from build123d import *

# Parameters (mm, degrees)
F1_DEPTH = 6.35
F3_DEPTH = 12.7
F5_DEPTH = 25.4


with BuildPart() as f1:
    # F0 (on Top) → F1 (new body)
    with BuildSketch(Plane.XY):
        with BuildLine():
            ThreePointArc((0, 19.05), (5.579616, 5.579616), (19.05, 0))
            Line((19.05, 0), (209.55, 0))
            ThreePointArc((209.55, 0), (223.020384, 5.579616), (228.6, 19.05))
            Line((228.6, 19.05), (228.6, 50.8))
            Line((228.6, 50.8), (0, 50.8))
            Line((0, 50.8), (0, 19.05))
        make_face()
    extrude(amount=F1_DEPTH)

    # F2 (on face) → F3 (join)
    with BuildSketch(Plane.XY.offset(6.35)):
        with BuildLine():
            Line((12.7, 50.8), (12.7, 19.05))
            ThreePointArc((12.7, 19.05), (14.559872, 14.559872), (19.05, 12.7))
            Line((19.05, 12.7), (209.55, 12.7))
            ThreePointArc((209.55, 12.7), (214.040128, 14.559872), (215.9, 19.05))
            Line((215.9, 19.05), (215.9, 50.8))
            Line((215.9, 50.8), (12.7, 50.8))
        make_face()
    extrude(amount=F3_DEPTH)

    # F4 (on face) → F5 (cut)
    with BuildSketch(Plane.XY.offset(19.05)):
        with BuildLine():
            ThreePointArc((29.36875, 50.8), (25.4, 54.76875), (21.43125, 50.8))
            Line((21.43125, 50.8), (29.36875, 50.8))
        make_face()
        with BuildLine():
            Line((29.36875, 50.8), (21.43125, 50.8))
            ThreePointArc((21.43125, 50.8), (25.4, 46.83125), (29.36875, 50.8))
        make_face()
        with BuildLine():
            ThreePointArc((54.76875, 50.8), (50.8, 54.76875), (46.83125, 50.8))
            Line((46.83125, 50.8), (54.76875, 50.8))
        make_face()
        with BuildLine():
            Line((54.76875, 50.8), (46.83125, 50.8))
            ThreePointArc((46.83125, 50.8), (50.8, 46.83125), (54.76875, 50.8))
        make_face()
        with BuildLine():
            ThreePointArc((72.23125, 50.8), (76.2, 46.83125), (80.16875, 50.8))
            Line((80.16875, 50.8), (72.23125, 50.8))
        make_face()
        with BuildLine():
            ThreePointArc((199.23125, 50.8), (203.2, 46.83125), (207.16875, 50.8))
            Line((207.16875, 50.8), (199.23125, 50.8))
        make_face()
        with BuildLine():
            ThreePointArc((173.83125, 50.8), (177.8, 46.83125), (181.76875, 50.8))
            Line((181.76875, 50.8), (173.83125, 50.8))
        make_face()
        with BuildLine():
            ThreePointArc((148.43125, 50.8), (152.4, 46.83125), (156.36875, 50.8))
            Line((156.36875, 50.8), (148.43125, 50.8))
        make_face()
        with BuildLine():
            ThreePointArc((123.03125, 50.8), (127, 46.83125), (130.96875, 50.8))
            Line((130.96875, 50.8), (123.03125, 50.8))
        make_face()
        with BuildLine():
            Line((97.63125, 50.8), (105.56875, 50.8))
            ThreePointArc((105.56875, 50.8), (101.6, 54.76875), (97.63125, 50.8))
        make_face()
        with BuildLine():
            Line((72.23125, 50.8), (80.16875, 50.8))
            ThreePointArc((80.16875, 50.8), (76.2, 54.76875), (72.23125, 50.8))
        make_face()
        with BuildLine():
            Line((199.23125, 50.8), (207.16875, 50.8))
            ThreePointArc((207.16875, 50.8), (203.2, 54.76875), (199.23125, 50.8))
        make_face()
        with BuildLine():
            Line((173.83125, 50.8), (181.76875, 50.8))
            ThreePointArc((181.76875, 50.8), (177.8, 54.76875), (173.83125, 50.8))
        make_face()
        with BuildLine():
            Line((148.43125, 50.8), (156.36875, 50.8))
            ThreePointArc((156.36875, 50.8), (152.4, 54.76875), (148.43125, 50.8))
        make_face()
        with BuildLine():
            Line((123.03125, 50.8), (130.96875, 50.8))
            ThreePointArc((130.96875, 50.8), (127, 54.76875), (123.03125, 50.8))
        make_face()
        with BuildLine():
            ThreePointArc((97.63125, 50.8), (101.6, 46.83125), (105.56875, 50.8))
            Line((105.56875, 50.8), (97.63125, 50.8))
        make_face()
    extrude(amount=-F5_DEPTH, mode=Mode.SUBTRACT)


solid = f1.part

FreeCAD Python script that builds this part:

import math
import FreeCAD as App
import Part
import Sketcher
Q = App.Units.Quantity

doc = App.newDocument("Part")
body = doc.addObject("PartDesign::Body", "Body")

# Sketch on XY plane
sketch1 = body.newObject("Sketcher::SketchObject", "Sketch")
sketch1.AttachmentSupport = (doc.getObject("XY_Plane"), [""])
sketch1.MapMode = "FlatFace"
sketch1.addGeometry(Part.ArcOfCircle(Part.Circle(App.Vector(19, 19, 0), App.Vector(0, 0, 1), 19), math.radians(-180), math.radians(-90)), False)
sketch1.addGeometry(Part.LineSegment(App.Vector(19, 0, 0), App.Vector(210, 0, 0)), False)
sketch1.addGeometry(Part.ArcOfCircle(Part.Circle(App.Vector(210, 19, 0), App.Vector(0, 0, 1), 19), math.radians(-90), math.radians(0)), False)
sketch1.addGeometry(Part.LineSegment(App.Vector(229, 19, 0), App.Vector(229, 51, 0)), False)
sketch1.addGeometry(Part.LineSegment(App.Vector(229, 51, 0), App.Vector(0, 51, 0)), False)
sketch1.addGeometry(Part.LineSegment(App.Vector(0, 51, 0), App.Vector(0, 19, 0)), False)
sketch1.addConstraint(Sketcher.Constraint("Tangent", 0, 2, 1, 1))
sketch1.addConstraint(Sketcher.Constraint("Tangent", 1, 2, 2, 1))
sketch1.addConstraint(Sketcher.Constraint("Tangent", 2, 2, 3, 1))
sketch1.addConstraint(Sketcher.Constraint("Coincident", 3, 2, 4, 1))
sketch1.addConstraint(Sketcher.Constraint("Coincident", 4, 2, 5, 1))
sketch1.addConstraint(Sketcher.Constraint("Tangent", 5, 2, 0, 1))
sketch1.addConstraint(Sketcher.Constraint("Horizontal", 1))
sketch1.addConstraint(Sketcher.Constraint("Vertical", 3))
sketch1.addConstraint(Sketcher.Constraint("Horizontal", 4))
sketch1.addConstraint(Sketcher.Constraint("Vertical", 5))
sketch1.addConstraint(Sketcher.Constraint("Equal", 0, 2))
sketch1.addConstraint(Sketcher.Constraint("PointOnObject", 0, 2, -1))
sketch1.addConstraint(Sketcher.Constraint("PointOnObject", 4, 2, -2))
sketch1.addConstraint(Sketcher.Constraint("DistanceX", 4, 2, 4, 1, Q("9 in")))
sketch1.addConstraint(Sketcher.Constraint("Radius", 0, Q("0.75 in")))
sketch1.addConstraint(Sketcher.Constraint("DistanceY", -1, 1, 3, 2, Q("2 in")))
pad1 = body.newObject("PartDesign::Pad", "Pad")
pad1.Profile = sketch1
pad1.Length = Q("0.25 in")

# Sketch on XY plane
sketch2 = body.newObject("Sketcher::SketchObject", "Sketch001")
sketch2.AttachmentSupport = (doc.getObject("XY_Plane"), [""])
sketch2.MapMode = "FlatFace"
sketch2.AttachmentOffset = App.Placement(App.Vector(0, 0, 0.25 * 25.4), App.Rotation())
sketch2.addGeometry(Part.LineSegment(App.Vector(13, 51, 0), App.Vector(13, 19, 0)), False)
sketch2.addGeometry(Part.ArcOfCircle(Part.Circle(App.Vector(19, 19, 0), App.Vector(0, 0, 1), 6), math.radians(-180), math.radians(-90)), False)
sketch2.addGeometry(Part.LineSegment(App.Vector(19, 13, 0), App.Vector(210, 13, 0)), False)
sketch2.addGeometry(Part.ArcOfCircle(Part.Circle(App.Vector(210, 19, 0), App.Vector(0, 0, 1), 6), math.radians(-90), math.radians(0)), False)
sketch2.addGeometry(Part.LineSegment(App.Vector(216, 19, 0), App.Vector(216, 51, 0)), False)
sketch2.addGeometry(Part.LineSegment(App.Vector(216, 51, 0), App.Vector(13, 51, 0)), False)
sketch2.addConstraint(Sketcher.Constraint("Tangent", 0, 2, 1, 1))
sketch2.addConstraint(Sketcher.Constraint("Tangent", 1, 2, 2, 1))
sketch2.addConstraint(Sketcher.Constraint("Tangent", 2, 2, 3, 1))
sketch2.addConstraint(Sketcher.Constraint("Tangent", 3, 2, 4, 1))
sketch2.addConstraint(Sketcher.Constraint("Coincident", 4, 2, 5, 1))
sketch2.addConstraint(Sketcher.Constraint("Coincident", 5, 2, 0, 1))
sketch2.addConstraint(Sketcher.Constraint("Vertical", 0))
sketch2.addConstraint(Sketcher.Constraint("Horizontal", 2))
sketch2.addConstraint(Sketcher.Constraint("Vertical", 4))
sketch2.addConstraint(Sketcher.Constraint("Horizontal", 5))
sketch2.addConstraint(Sketcher.Constraint("Equal", 1, 3))
sketch2.addConstraint(Sketcher.Constraint("DistanceX", 5, 2, 5, 1, Q("8 in")))
sketch2.addConstraint(Sketcher.Constraint("Radius", 1, Q("0.25 in")))
sketch2.addConstraint(Sketcher.Constraint("DistanceY", -1, 1, 4, 2, Q("2 in")))
sketch2.addConstraint(Sketcher.Constraint("DistanceY", 0, 2, 0, 1, Q("1.25 in")))
sketch2.addConstraint(Sketcher.Constraint("DistanceX", -1, 1, 0, 2, Q("0.5 in")))
pad2 = body.newObject("PartDesign::Pad", "Pad001")
pad2.Profile = sketch2
pad2.Length = Q("0.5 in")

# Sketch on XY plane
sketch3 = body.newObject("Sketcher::SketchObject", "Sketch002")
sketch3.AttachmentSupport = (doc.getObject("XY_Plane"), [""])
sketch3.MapMode = "FlatFace"
sketch3.AttachmentOffset = App.Placement(App.Vector(0, 0, 0.75 * 25.4), App.Rotation())
sketch3.addGeometry(Part.Circle(App.Vector(25.4, 50.8, 0), App.Vector(0, 0, 1), 4), False)
sketch3.addGeometry(Part.Circle(App.Vector(50.8, 50.8, 0), App.Vector(0, 0, 1), 4), False)
sketch3.addGeometry(Part.Circle(App.Vector(76.2, 50.8, 0), App.Vector(0, 0, 1), 4), False)
sketch3.addGeometry(Part.Circle(App.Vector(203.2, 50.8, 0), App.Vector(0, 0, 1), 4), False)
sketch3.addGeometry(Part.Circle(App.Vector(177.8, 50.8, 0), App.Vector(0, 0, 1), 4), False)
sketch3.addGeometry(Part.Circle(App.Vector(152.4, 50.8, 0), App.Vector(0, 0, 1), 4), False)
sketch3.addGeometry(Part.Circle(App.Vector(127, 50.8, 0), App.Vector(0, 0, 1), 4), False)
sketch3.addGeometry(Part.Circle(App.Vector(101.6, 50.8, 0), App.Vector(0, 0, 1), 4), False)
sketch3.addConstraint(Sketcher.Constraint("Equal", 0, 1))
sketch3.addConstraint(Sketcher.Constraint("Equal", 1, 2))
sketch3.addConstraint(Sketcher.Constraint("Equal", 2, 3))
sketch3.addConstraint(Sketcher.Constraint("Equal", 3, 4))
sketch3.addConstraint(Sketcher.Constraint("Equal", 4, 5))
sketch3.addConstraint(Sketcher.Constraint("Equal", 5, 6))
sketch3.addConstraint(Sketcher.Constraint("Equal", 6, 7))
sketch3.addConstraint(Sketcher.Constraint("Horizontal", 0, 3, 1, 3))
sketch3.addConstraint(Sketcher.Constraint("Horizontal", 1, 3, 2, 3))
sketch3.addConstraint(Sketcher.Constraint("Horizontal", 2, 3, 3, 3))
sketch3.addConstraint(Sketcher.Constraint("Horizontal", 3, 3, 4, 3))
sketch3.addConstraint(Sketcher.Constraint("Horizontal", 4, 3, 5, 3))
sketch3.addConstraint(Sketcher.Constraint("Horizontal", 5, 3, 6, 3))
sketch3.addConstraint(Sketcher.Constraint("Horizontal", 6, 3, 7, 3))
sketch3.addConstraint(Sketcher.Constraint("Diameter", 0, Q("0.3125 in")))
sketch3.addConstraint(Sketcher.Constraint("DistanceX", -1, 1, 0, 3, Q("1 in")))
sketch3.addConstraint(Sketcher.Constraint("DistanceY", -1, 1, 0, 3, Q("2 in")))
sketch3.addConstraint(Sketcher.Constraint("DistanceX", -1, 1, 1, 3, Q("2 in")))
sketch3.addConstraint(Sketcher.Constraint("DistanceX", -1, 1, 2, 3, Q("3 in")))
sketch3.addConstraint(Sketcher.Constraint("DistanceX", -1, 1, 3, 3, Q("8 in")))
sketch3.addConstraint(Sketcher.Constraint("DistanceX", -1, 1, 4, 3, Q("7 in")))
sketch3.addConstraint(Sketcher.Constraint("DistanceX", -1, 1, 5, 3, Q("6 in")))
sketch3.addConstraint(Sketcher.Constraint("DistanceX", -1, 1, 6, 3, Q("5 in")))
sketch3.addConstraint(Sketcher.Constraint("DistanceX", -1, 1, 7, 3, Q("4 in")))
pocket1 = body.newObject("PartDesign::Pocket", "Pocket")
pocket1.Profile = sketch3
pocket1.Length = Q("1 in")

doc.recompute()
